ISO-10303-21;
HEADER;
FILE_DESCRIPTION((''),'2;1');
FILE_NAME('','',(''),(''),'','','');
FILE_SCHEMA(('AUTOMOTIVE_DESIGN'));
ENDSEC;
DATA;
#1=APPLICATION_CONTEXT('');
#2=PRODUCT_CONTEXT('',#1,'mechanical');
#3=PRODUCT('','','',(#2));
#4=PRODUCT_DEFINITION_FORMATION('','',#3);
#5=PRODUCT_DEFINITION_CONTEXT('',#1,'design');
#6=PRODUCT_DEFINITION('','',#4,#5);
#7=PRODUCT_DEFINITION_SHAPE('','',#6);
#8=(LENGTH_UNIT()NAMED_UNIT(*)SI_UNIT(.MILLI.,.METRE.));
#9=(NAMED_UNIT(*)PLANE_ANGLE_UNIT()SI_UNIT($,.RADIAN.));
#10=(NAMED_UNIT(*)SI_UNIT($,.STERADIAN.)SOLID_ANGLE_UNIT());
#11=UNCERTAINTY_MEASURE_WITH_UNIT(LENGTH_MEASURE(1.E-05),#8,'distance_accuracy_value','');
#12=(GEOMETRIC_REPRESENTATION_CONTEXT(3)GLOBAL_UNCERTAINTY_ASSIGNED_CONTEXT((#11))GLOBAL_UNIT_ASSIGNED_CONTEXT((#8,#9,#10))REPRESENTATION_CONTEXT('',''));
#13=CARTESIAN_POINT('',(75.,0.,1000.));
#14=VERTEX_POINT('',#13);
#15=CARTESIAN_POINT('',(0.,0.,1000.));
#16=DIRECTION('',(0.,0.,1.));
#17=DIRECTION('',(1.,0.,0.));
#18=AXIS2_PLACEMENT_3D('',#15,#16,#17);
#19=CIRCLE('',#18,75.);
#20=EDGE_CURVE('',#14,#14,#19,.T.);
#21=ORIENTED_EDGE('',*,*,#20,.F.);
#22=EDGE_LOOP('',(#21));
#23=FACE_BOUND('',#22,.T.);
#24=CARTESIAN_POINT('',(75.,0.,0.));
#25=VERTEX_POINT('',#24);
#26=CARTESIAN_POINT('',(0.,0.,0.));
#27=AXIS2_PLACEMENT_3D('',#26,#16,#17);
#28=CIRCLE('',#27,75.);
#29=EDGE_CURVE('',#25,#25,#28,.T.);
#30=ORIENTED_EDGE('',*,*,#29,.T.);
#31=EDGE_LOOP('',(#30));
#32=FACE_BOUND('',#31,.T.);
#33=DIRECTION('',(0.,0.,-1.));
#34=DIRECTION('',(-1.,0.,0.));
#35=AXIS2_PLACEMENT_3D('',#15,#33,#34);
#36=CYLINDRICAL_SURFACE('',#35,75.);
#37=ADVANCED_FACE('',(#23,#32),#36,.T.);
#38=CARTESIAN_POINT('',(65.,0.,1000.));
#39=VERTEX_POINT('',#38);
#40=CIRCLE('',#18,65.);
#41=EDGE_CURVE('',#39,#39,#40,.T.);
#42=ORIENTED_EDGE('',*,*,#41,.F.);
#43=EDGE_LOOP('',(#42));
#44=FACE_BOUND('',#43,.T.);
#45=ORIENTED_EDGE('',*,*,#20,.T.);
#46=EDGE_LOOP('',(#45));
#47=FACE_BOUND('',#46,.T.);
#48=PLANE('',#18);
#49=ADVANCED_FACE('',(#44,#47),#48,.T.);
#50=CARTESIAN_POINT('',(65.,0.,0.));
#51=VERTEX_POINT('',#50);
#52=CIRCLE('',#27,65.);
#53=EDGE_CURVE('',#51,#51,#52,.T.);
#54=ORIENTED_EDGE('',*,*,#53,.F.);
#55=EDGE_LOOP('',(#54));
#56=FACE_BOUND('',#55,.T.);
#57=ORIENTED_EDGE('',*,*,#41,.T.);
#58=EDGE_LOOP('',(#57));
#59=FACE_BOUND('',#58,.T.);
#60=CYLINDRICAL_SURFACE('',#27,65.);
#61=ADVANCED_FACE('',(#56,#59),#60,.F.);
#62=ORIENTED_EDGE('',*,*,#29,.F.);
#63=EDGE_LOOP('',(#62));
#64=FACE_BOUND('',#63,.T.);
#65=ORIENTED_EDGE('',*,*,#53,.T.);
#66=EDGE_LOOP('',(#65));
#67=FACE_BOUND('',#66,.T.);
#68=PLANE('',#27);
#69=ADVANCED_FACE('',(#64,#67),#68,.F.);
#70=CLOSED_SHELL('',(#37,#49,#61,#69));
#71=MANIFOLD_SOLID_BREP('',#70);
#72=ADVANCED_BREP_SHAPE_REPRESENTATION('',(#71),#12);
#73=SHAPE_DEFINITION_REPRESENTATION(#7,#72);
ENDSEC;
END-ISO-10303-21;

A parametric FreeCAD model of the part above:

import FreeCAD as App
import Part
import Sketcher

V = App.Vector

doc = App.newDocument("Part")
body = doc.addObject("PartDesign::Body", "Body")

# Sketch on XY plane
sketch1 = body.newObject("Sketcher::SketchObject", "Sketch")
sketch1.AttachmentSupport = (doc.getObject("XY_Plane"), [""])
sketch1.MapMode = "FlatFace"
sketch1.addGeometry(Part.Circle(V(0, 0, 0), V(0, 0, 1), 75), False)
sketch1.addConstraint([
    Sketcher.Constraint("Coincident", 0, 3, -1, 1),
    Sketcher.Constraint("Diameter", 0, 150.0),
])
pad1 = body.newObject("PartDesign::Pad", "Pad")
pad1.Profile = sketch1
pad1.Length = 1000

# Sketch on XY plane
sketch2 = body.newObject("Sketcher::SketchObject", "Sketch001")
sketch2.AttachmentSupport = (doc.getObject("XY_Plane"), [""])
sketch2.MapMode = "FlatFace"
sketch2.AttachmentOffset = App.Placement(V(0, 0, 1000), App.Rotation())
sketch2.addGeometry(Part.Circle(V(0, 0, 0), V(0, 0, 1), 65), False)
sketch2.addConstraint([
    Sketcher.Constraint("Coincident", 0, 3, -1, 1),
    Sketcher.Constraint("Diameter", 0, 130.0),
])
pocket1 = body.newObject("PartDesign::Pocket", "Pocket")
pocket1.Profile = sketch2
pocket1.Length = 1000

doc.recompute()
